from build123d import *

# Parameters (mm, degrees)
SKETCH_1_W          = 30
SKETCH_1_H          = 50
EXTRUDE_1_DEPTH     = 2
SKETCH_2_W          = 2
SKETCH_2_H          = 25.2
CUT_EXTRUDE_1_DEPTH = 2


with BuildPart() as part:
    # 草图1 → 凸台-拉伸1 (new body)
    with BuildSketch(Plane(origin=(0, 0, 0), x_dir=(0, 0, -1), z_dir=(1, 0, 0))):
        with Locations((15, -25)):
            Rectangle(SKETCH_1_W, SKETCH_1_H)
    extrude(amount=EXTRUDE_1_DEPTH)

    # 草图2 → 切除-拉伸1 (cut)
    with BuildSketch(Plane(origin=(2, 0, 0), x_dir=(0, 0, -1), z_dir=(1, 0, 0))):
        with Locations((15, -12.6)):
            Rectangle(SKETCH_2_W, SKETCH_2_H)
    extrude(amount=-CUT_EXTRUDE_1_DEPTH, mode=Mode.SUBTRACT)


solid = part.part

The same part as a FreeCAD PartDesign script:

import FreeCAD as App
import Part
import Sketcher

V = App.Vector

doc = App.newDocument("Part")
params = doc.addObject("Spreadsheet::Sheet", "Params")
for row, (alias, value) in enumerate([
    ("sketch1_width", "50 mm"),
    ("sketch1_height", "30 mm"),
    ("pad1_length", "2 mm"),
    ("sketch2_height", "2 mm"),
    ("sketch2_width", "25.2 mm"),
    ("pocket1_length", "2 mm"),
], start=1):
    params.set(f"A{row}", alias)
    params.set(f"B{row}", "=" + value)
    params.setAlias(f"B{row}", alias)

body = doc.addObject("PartDesign::Body", "Body")

# Sketch on YZ plane
sketch1 = doc.addObject("Sketcher::SketchObject", "Sketch")
body.addObject(sketch1)
sketch1.AttachmentSupport = (doc.YZ_Plane, [""])
sketch1.MapMode = "FlatFace"
sketch1.addGeometry(Part.LineSegment(V(0, 0, 0), V(-50, 0, 0)), False)
sketch1.addGeometry(Part.LineSegment(V(-50, 0, 0), V(-50, -30, 0)), False)
sketch1.addGeometry(Part.LineSegment(V(-50, -30, 0), V(0, -30, 0)), False)
sketch1.addGeometry(Part.LineSegment(V(0, -30, 0), V(0, 0, 0)), False)
sketch1.addConstraint(Sketcher.Constraint("Coincident", 0, 2, 1, 1))
sketch1.addConstraint(Sketcher.Constraint("Coincident", 1, 2, 2, 1))
sketch1.addConstraint(Sketcher.Constraint("Coincident", 2, 2, 3, 1))
sketch1.addConstraint(Sketcher.Constraint("Coincident", 3, 2, 0, 1))
sketch1.addConstraint(Sketcher.Constraint("Horizontal", 0))
sketch1.addConstraint(Sketcher.Constraint("Vertical", 1))
sketch1.addConstraint(Sketcher.Constraint("Horizontal", 2))
sketch1.addConstraint(Sketcher.Constraint("Vertical", 3))
sketch1.addConstraint(Sketcher.Constraint("Coincident", 3, 2, -1, 1))
sketch1.addConstraint(Sketcher.Constraint("DistanceX", 0, 2, 0, 1, 50.0))
sketch1.addConstraint(Sketcher.Constraint("DistanceY", 1, 2, 1, 1, 30.0))
sketch1.setExpression("Constraints[9]", "Params.sketch1_width")
sketch1.setExpression("Constraints[10]", "Params.sketch1_height")
pad1 = doc.addObject("PartDesign::Pad", "Pad")
body.addObject(pad1)
pad1.Profile = sketch1
pad1.setExpression("Length", "Params.pad1_length")

# Sketch on YZ plane
sketch2 = doc.addObject("Sketcher::SketchObject", "Sketch001")
body.addObject(sketch2)
sketch2.AttachmentSupport = (doc.YZ_Plane, [""])
sketch2.MapMode = "FlatFace"
sketch2.AttachmentOffset = App.Placement(V(0, 0, 2), App.Rotation())
sketch2.addGeometry(Part.LineSegment(V(0, -14, 0), V(-25.2, -14, 0)), False)
sketch2.addGeometry(Part.LineSegment(V(-25.2, -14, 0), V(-25.2, -16, 0)), False)
sketch2.addGeometry(Part.LineSegment(V(-25.2, -16, 0), V(0, -16, 0)), False)
sketch2.addGeometry(Part.LineSegment(V(0, -16, 0), V(0, -14, 0)), False)
sketch2.addConstraint(Sketcher.Constraint("Coincident", 0, 2, 1, 1))
sketch2.addConstraint(Sketcher.Constraint("Coincident", 1, 2, 2, 1))
sketch2.addConstraint(Sketcher.Constraint("Coincident", 2, 2, 3, 1))
sketch2.addConstraint(Sketcher.Constraint("Coincident", 3, 2, 0, 1))
sketch2.addConstraint(Sketcher.Constraint("Horizontal", 0))
sketch2.addConstraint(Sketcher.Constraint("Vertical", 1))
sketch2.addConstraint(Sketcher.Constraint("Horizontal", 2))
sketch2.addConstraint(Sketcher.Constraint("Vertical", 3))
sketch2.addConstraint(Sketcher.Constraint("PointOnObject", 2, 2, -2))
sketch2.addConstraint(Sketcher.Constraint("DistanceY", 1, 2, 1, 1, 2.0))
sketch2.addConstraint(Sketcher.Constraint("DistanceX", 0, 2, 0, 1, 25.2))
sketch2.addConstraint(Sketcher.Constraint("DistanceY", 0, 2, -1, 1, 14.0))
sketch2.setExpression("Constraints[9]", "Params.sketch2_height")
sketch2.setExpression("Constraints[10]", "Params.sketch2_width")
pocket1 = doc.addObject("PartDesign::Pocket", "Pocket")
body.addObject(pocket1)
pocket1.Profile = sketch2
pocket1.setExpression("Length", "Params.pocket1_length")

doc.recompute()
